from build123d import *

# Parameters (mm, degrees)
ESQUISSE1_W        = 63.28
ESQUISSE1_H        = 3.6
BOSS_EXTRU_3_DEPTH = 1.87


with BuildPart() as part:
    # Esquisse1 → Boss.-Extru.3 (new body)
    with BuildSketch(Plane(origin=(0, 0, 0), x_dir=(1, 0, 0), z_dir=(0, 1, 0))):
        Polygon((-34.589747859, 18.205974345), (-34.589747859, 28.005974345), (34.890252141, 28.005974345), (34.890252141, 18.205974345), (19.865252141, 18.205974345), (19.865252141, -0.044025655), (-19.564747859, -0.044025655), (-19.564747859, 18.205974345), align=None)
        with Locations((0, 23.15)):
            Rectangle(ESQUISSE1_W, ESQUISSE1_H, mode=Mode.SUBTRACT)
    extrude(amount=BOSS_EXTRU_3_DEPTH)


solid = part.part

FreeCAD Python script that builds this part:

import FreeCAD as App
import Part
import Sketcher

V = App.Vector
Q = App.Units.Quantity


def add_polygon(sketch, points):
    """Adds a closed chain of lines whose ends are joined by coincident constraints."""
    first, n = sketch.GeometryCount, len(points)
    for a, b in zip(points, points[1:] + points[:1]):
        sketch.addGeometry(Part.LineSegment(App.Vector(*a, 0), App.Vector(*b, 0)), False)
    for i in range(n):
        sketch.addConstraint(Sketcher.Constraint("Coincident", first + i, 2, first + (i + 1) % n, 1))

doc = App.newDocument("Part")
body = doc.addObject("PartDesign::Body", "Body")

# Sketch on XZ plane
sketch1 = doc.addObject("Sketcher::SketchObject", "Sketch")
body.addObject(sketch1)
sketch1.AttachmentSupport = (doc.XZ_Plane, [""])
sketch1.MapMode = "FlatFace"
add_polygon(sketch1, [(-34.589748, -28.005974), (-34.589748, -18.205974), (-19.564748, -18.205974), (-19.564748, 0.044026), (19.865252, 0.044026), (19.865252, -18.205974), (34.890252, -18.205974), (34.890252, -28.005974)])  # lines 0-7
add_polygon(sketch1, [(-31.64, -21.35), (-31.64, -24.95), (31.64, -24.95), (31.64, -21.35)])  # lines 8-11
sketch1.addConstraint(Sketcher.Constraint("Vertical", 0))
sketch1.addConstraint(Sketcher.Constraint("Horizontal", 1))
sketch1.addConstraint(Sketcher.Constraint("Vertical", 2))
sketch1.addConstraint(Sketcher.Constraint("Horizontal", 3))
sketch1.addConstraint(Sketcher.Constraint("Vertical", 4))
sketch1.addConstraint(Sketcher.Constraint("Horizontal", 5))
sketch1.addConstraint(Sketcher.Constraint("Vertical", 6))
sketch1.addConstraint(Sketcher.Constraint("Horizontal", 7))
sketch1.addConstraint(Sketcher.Constraint("Vertical", 8))
sketch1.addConstraint(Sketcher.Constraint("Horizontal", 9))
sketch1.addConstraint(Sketcher.Constraint("Vertical", 10))
sketch1.addConstraint(Sketcher.Constraint("Horizontal", 11))
sketch1.addConstraint(Sketcher.Constraint("Horizontal", 1, 2, 4, 2))
sketch1.addConstraint(Sketcher.Constraint("Equal", 1, 5))
sketch1.addConstraint(Sketcher.Constraint("DistanceY", 0, 1, 0, 2, Q("9.8 mm")))
sketch1.addConstraint(Sketcher.Constraint("DistanceY", 8, 2, 8, 1, Q("3.6 mm")))
sketch1.addConstraint(Sketcher.Constraint("DistanceX", 3, 1, 3, 2, Q("39.43 mm")))
sketch1.addConstraint(Sketcher.Constraint("DistanceX", 7, 2, 7, 1, Q("69.48 mm")))
sketch1.addConstraint(Sketcher.Constraint("DistanceX", 9, 1, 9, 2, Q("63.28 mm")))
sketch1.addConstraint(Sketcher.Constraint("DistanceY", 2, 1, 2, 2, Q("18.25 mm")))
sketch1.addConstraint(Sketcher.Constraint("DistanceX", 8, 2, -1, 1, Q("31.64 mm")))
sketch1.addConstraint(Sketcher.Constraint("DistanceY", 8, 2, -1, 1, Q("24.95 mm")))
sketch1.addConstraint(Sketcher.Constraint("DistanceX", 0, 2, -1, 1, Q("34.589748 mm")))
sketch1.addConstraint(Sketcher.Constraint("DistanceY", 0, 2, -1, 1, Q("18.205974 mm")))
pad1 = doc.addObject("PartDesign::Pad", "Pad")
body.addObject(pad1)
pad1.Profile = sketch1
pad1.Length = 1.87
pad1.Reversed = True

doc.recompute()
